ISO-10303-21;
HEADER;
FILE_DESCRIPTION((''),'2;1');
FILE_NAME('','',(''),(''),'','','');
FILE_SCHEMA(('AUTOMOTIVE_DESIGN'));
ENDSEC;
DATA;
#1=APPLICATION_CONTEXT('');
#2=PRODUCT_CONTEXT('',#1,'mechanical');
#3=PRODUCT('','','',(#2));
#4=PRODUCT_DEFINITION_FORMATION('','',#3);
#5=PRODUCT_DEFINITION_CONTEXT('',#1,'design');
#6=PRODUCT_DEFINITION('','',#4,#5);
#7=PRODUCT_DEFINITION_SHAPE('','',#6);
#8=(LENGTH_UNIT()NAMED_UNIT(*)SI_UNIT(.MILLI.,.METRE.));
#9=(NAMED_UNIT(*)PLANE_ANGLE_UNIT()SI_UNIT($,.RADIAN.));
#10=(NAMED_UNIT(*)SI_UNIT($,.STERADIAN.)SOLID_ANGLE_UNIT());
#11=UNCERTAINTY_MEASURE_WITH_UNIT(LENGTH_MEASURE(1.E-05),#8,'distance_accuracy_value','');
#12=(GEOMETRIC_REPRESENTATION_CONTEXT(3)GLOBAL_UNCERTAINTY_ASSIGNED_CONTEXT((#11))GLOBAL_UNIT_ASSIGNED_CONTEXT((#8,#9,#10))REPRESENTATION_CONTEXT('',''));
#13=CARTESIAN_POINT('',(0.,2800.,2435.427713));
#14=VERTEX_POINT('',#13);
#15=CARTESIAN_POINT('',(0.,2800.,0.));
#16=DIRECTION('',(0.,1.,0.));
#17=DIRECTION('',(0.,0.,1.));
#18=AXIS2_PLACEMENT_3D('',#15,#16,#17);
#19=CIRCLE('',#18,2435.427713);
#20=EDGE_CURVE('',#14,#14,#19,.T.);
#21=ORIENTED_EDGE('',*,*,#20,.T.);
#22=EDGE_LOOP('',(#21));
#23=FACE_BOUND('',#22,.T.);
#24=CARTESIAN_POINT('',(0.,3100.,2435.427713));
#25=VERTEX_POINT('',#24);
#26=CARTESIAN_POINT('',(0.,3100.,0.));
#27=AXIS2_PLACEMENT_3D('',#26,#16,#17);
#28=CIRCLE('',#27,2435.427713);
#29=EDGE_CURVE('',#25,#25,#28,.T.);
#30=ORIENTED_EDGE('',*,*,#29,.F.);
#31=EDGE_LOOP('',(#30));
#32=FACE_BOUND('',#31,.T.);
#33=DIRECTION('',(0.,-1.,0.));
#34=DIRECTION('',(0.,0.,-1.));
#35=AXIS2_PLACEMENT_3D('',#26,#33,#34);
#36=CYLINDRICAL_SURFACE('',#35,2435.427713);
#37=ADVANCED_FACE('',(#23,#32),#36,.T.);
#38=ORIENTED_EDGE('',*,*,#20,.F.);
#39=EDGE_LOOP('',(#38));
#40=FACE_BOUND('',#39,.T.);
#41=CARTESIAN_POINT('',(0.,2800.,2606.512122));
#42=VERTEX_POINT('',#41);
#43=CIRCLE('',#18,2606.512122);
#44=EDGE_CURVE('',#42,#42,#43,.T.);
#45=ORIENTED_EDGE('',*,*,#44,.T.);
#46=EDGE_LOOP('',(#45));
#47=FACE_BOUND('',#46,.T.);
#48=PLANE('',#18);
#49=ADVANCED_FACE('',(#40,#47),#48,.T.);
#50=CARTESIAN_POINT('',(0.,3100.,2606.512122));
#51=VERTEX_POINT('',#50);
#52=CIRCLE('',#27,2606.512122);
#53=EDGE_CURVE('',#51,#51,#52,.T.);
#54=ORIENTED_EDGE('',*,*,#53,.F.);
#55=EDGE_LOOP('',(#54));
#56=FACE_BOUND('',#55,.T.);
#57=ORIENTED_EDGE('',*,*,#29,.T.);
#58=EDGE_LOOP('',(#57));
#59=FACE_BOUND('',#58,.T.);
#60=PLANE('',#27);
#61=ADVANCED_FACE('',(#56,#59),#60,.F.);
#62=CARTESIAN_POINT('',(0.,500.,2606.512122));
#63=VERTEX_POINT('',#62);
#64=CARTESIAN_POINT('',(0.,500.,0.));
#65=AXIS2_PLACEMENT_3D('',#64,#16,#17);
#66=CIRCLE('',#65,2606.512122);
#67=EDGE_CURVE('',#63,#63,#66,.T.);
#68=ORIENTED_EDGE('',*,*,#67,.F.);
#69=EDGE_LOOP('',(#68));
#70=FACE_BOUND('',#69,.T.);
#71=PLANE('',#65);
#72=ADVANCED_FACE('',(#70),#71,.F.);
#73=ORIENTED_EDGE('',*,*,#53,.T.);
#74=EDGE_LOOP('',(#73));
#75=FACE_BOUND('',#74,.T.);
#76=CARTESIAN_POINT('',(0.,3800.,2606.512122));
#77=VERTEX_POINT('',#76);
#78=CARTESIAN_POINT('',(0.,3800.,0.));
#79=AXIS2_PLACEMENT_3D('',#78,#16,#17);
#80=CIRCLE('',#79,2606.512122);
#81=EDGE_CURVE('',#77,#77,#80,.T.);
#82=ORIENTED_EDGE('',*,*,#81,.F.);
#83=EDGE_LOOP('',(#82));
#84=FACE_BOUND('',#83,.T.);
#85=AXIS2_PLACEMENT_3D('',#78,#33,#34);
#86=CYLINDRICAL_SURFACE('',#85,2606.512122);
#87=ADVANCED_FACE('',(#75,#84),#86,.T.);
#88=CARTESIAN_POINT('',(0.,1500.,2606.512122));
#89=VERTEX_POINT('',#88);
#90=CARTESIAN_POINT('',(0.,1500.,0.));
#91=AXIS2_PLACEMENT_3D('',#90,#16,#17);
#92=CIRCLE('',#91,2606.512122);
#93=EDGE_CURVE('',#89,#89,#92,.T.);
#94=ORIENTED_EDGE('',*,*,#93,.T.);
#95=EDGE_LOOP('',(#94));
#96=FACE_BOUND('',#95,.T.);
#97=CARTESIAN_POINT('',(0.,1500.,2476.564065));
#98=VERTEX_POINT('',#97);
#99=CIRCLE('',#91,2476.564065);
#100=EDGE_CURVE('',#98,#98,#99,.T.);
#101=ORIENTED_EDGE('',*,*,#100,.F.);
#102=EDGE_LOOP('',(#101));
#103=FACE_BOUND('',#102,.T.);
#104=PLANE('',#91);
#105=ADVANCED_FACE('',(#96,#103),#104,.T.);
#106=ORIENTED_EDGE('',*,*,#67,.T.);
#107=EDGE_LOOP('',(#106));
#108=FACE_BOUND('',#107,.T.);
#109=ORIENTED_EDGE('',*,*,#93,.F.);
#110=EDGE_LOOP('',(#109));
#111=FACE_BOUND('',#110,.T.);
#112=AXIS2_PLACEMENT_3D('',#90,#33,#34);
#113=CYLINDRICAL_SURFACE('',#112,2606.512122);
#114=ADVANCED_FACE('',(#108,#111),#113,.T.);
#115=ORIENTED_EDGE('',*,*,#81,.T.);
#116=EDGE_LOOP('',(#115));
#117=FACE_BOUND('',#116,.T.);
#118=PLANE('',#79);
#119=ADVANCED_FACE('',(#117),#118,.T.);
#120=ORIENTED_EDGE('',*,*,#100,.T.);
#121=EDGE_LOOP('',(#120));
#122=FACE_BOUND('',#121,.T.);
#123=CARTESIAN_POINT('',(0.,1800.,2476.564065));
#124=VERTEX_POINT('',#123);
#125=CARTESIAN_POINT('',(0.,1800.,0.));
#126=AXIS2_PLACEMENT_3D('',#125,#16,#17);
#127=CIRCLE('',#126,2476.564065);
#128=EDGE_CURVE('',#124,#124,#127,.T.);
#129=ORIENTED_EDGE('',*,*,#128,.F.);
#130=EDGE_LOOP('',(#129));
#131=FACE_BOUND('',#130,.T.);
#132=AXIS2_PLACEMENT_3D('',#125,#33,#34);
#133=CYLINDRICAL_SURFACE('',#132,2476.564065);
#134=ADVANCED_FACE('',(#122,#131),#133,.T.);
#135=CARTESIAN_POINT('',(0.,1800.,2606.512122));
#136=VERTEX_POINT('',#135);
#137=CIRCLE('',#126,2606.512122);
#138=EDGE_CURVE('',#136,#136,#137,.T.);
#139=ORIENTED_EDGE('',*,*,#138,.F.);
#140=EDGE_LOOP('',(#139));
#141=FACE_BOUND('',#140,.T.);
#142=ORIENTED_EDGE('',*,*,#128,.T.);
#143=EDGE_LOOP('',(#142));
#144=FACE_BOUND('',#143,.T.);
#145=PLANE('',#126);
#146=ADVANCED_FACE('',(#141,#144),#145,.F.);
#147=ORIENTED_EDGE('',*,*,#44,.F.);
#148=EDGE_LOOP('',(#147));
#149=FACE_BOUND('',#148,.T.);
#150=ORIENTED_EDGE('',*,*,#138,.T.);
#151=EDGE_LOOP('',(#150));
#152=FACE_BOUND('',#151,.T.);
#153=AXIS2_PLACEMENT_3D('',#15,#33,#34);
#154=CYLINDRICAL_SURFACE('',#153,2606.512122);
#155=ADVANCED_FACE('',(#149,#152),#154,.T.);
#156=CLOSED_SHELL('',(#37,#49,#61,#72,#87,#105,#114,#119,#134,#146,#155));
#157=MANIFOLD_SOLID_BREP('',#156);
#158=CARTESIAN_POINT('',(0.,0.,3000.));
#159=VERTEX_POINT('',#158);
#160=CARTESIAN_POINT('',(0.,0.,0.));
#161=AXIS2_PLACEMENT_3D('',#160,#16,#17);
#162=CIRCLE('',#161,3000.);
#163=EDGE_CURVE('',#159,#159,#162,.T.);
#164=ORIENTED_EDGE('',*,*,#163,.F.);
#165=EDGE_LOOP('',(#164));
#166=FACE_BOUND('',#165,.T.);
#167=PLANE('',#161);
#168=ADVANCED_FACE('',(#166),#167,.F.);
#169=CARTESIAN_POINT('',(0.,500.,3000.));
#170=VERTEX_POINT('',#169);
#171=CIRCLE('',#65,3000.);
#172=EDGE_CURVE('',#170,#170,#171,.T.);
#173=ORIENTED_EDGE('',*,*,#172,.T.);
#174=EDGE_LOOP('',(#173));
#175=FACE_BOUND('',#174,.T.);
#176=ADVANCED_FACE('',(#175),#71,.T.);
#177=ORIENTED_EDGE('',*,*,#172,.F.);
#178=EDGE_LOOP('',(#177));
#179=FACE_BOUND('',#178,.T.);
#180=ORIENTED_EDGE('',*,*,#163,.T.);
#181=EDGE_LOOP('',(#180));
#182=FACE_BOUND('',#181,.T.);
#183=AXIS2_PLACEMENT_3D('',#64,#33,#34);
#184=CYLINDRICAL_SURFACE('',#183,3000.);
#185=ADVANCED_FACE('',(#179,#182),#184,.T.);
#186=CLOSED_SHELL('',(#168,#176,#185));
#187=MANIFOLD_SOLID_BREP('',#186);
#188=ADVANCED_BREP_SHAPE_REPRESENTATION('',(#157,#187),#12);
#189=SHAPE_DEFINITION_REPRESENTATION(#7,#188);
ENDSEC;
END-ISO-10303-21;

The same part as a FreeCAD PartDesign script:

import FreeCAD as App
import Part
import Sketcher

V = App.Vector
Q = App.Units.Quantity

doc = App.newDocument("Part")
body = doc.addObject("PartDesign::Body", "Body")

# Sketch on XZ plane
sketch1 = doc.addObject("Sketcher::SketchObject", "Sketch")
body.addObject(sketch1)
sketch1.AttachmentSupport = (doc.XZ_Plane, [""])
sketch1.MapMode = "FlatFace"
sketch1.addGeometry(Part.Circle(V(0, 0, 0), V(0, 0, 1), 3000), False)
sketch1.addConstraint(Sketcher.Constraint("Coincident", 0, 3, -1, 1))
sketch1.addConstraint(Sketcher.Constraint("Diameter", 0, Q("6000 mm")))
pad1 = doc.addObject("PartDesign::Pad", "Pad")
body.addObject(pad1)
pad1.Profile = sketch1
pad1.Length = 500
pad1.Reversed = True
body2 = doc.addObject("PartDesign::Body", "Body001")

# Sketch on XZ plane
sketch2 = doc.addObject("Sketcher::SketchObject", "Sketch001")
body2.addObject(sketch2)
sketch2.AttachmentSupport = (doc.getObject("XZ_Plane001"), [""])
sketch2.MapMode = "FlatFace"
sketch2.AttachmentOffset = App.Placement(V(0, 0, -500), App.Rotation())
sketch2.addGeometry(Part.Circle(V(0, 0, 0), V(0, 0, 1), 2607), False)
sketch2.addConstraint(Sketcher.Constraint("Coincident", 0, 3, -1, 1))
sketch2.addConstraint(Sketcher.Constraint("Diameter", 0, Q("5213.024243 mm")))
pad2 = doc.addObject("PartDesign::Pad", "Pad001")
body2.addObject(pad2)
pad2.Profile = sketch2
pad2.Length = 1000
pad2.Reversed = True

# Sketch on XZ plane
sketch3 = doc.addObject("Sketcher::SketchObject", "Sketch002")
body2.addObject(sketch3)
sketch3.AttachmentSupport = (doc.getObject("XZ_Plane001"), [""])
sketch3.MapMode = "FlatFace"
sketch3.AttachmentOffset = App.Placement(V(0, 0, -1500), App.Rotation())
sketch3.addGeometry(Part.Circle(V(0, 0, 0), V(0, 0, 1), 2477), False)
sketch3.addConstraint(Sketcher.Constraint("Coincident", 0, 3, -1, 1))
sketch3.addConstraint(Sketcher.Constraint("Diameter", 0, Q("4953.128131 mm")))
pad3 = doc.addObject("PartDesign::Pad", "Pad002")
body2.addObject(pad3)
pad3.Profile = sketch3
pad3.Length = 300
pad3.Reversed = True

# Sketch on XZ plane
sketch4 = doc.addObject("Sketcher::SketchObject", "Sketch003")
body2.addObject(sketch4)
sketch4.AttachmentSupport = (doc.getObject("XZ_Plane001"), [""])
sketch4.MapMode = "FlatFace"
sketch4.AttachmentOffset = App.Placement(V(0, 0, -1800), App.Rotation())
sketch4.addGeometry(Part.Circle(V(0, 0, 0), V(0, 0, 1), 2607), False)
sketch4.addConstraint(Sketcher.Constraint("Coincident", 0, 3, -1, 1))
sketch4.addConstraint(Sketcher.Constraint("Diameter", 0, Q("5213.024243 mm")))
pad4 = doc.addObject("PartDesign::Pad", "Pad003")
body2.addObject(pad4)
pad4.Profile = sketch4
pad4.Length = 1000
pad4.Reversed = True

# Sketch on XZ plane
sketch5 = doc.addObject("Sketcher::SketchObject", "Sketch004")
body2.addObject(sketch5)
sketch5.AttachmentSupport = (doc.getObject("XZ_Plane001"), [""])
sketch5.MapMode = "FlatFace"
sketch5.AttachmentOffset = App.Placement(V(0, 0, -2800), App.Rotation())
sketch5.addGeometry(Part.Circle(V(0, 0, 0), V(0, 0, 1), 2435), False)
sketch5.addConstraint(Sketcher.Constraint("Coincident", 0, 3, -1, 1))
sketch5.addConstraint(Sketcher.Constraint("Diameter", 0, Q("4870.855426 mm")))
pad5 = doc.addObject("PartDesign::Pad", "Pad004")
body2.addObject(pad5)
pad5.Profile = sketch5
pad5.Length = 300
pad5.Reversed = True

# Sketch on XZ plane
sketch6 = doc.addObject("Sketcher::SketchObject", "Sketch005")
body2.addObject(sketch6)
sketch6.AttachmentSupport = (doc.getObject("XZ_Plane001"), [""])
sketch6.MapMode = "FlatFace"
sketch6.AttachmentOffset = App.Placement(V(0, 0, -3100), App.Rotation())
sketch6.addGeometry(Part.Circle(V(0, 0, 0), V(0, 0, 1), 2607), False)
sketch6.addConstraint(Sketcher.Constraint("Coincident", 0, 3, -1, 1))
sketch6.addConstraint(Sketcher.Constraint("Diameter", 0, Q("5213.024243 mm")))
pad6 = doc.addObject("PartDesign::Pad", "Pad005")
body2.addObject(pad6)
pad6.Profile = sketch6
pad6.Length = 700
pad6.Reversed = True

doc.recompute()
